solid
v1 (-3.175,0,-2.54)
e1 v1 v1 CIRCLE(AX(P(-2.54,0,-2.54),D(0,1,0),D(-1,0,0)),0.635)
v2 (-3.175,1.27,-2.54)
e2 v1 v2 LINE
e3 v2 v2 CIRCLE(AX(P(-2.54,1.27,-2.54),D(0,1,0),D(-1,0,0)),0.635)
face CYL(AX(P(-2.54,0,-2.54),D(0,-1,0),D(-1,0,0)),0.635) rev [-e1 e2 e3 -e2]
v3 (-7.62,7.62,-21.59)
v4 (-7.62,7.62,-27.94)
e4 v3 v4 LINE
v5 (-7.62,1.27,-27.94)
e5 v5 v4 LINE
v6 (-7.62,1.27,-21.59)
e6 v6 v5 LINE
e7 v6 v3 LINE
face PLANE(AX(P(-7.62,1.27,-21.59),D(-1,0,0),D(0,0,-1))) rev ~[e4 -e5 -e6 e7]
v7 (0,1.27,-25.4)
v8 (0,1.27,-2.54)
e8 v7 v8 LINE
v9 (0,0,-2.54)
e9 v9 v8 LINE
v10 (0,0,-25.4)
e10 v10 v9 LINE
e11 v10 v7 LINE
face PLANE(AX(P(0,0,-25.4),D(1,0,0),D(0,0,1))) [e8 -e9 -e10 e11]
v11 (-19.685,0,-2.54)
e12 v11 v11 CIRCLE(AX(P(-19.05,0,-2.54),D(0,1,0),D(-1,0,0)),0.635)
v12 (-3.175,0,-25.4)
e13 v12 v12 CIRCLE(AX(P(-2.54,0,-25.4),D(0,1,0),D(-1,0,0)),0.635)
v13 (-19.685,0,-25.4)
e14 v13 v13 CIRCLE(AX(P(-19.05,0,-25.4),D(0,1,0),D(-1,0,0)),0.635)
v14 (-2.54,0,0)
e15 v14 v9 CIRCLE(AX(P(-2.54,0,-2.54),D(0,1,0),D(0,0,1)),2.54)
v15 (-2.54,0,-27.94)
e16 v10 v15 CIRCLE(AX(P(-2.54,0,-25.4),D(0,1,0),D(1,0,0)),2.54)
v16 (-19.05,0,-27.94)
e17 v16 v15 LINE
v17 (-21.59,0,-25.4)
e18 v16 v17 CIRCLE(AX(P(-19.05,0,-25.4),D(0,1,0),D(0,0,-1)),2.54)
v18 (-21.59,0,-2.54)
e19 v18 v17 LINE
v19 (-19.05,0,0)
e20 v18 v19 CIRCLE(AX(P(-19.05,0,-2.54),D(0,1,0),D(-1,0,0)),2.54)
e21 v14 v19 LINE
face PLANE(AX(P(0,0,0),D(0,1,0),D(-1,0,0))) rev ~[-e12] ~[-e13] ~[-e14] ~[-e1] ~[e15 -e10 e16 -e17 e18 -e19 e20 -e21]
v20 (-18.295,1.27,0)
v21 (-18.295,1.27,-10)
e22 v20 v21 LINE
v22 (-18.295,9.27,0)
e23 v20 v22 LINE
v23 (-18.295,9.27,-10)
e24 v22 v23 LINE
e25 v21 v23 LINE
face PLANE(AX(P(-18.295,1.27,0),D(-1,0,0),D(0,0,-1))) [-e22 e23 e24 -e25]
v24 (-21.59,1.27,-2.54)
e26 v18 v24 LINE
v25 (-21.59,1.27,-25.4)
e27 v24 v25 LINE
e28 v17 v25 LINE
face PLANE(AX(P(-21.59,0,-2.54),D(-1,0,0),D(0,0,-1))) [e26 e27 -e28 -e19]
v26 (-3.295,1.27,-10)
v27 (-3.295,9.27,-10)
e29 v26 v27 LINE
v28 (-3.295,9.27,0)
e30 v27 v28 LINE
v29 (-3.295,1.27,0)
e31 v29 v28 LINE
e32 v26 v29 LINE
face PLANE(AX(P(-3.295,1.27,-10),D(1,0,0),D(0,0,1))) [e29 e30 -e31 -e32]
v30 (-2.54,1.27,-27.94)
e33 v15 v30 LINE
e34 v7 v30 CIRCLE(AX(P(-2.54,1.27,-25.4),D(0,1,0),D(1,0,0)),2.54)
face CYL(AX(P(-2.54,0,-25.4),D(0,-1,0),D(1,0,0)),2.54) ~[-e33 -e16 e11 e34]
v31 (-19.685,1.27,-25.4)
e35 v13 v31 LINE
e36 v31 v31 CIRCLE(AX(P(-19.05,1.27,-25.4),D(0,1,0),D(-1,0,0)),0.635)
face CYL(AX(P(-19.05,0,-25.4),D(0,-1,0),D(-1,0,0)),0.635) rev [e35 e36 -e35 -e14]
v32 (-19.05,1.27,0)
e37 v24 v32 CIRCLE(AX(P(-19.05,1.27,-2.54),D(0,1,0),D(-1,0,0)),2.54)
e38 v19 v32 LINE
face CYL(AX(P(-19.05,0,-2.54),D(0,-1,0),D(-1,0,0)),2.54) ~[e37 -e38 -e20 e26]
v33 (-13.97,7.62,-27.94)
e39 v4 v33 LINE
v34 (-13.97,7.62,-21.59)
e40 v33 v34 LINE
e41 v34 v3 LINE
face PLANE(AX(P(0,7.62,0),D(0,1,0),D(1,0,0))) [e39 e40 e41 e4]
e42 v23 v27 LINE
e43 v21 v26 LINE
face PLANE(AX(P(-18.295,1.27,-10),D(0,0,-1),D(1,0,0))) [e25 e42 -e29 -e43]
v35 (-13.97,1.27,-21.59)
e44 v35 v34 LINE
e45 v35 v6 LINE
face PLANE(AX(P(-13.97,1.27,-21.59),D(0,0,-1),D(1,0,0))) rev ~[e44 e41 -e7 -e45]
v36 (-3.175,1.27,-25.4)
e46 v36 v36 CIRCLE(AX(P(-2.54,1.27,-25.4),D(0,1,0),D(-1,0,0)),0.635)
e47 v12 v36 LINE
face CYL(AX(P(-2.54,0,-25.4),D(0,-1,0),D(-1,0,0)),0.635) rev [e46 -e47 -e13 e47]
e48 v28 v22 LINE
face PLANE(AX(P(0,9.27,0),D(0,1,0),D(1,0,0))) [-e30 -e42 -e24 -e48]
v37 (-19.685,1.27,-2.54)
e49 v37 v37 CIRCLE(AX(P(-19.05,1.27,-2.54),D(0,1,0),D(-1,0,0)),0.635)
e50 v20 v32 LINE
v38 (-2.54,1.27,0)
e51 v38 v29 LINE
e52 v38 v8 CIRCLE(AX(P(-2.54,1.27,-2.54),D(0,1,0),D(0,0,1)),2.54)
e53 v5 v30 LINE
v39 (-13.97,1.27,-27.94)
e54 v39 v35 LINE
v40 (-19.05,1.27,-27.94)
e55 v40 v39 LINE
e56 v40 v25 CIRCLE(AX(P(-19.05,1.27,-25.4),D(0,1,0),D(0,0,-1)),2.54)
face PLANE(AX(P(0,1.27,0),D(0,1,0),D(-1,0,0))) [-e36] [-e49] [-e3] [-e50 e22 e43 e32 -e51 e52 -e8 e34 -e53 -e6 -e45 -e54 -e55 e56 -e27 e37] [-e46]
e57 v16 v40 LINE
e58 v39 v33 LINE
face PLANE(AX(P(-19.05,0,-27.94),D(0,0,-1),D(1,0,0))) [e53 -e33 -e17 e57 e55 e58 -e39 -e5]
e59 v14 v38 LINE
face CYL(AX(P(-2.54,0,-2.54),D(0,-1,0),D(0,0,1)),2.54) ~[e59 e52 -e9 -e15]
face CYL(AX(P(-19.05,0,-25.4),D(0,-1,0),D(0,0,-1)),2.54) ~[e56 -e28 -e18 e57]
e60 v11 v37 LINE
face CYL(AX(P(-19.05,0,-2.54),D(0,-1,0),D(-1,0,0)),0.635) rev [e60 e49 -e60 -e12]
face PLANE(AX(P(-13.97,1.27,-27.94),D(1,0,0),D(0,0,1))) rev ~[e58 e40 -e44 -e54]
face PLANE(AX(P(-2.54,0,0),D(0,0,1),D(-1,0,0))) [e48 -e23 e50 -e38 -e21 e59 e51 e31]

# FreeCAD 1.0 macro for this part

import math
import FreeCAD as App
import Part
import Sketcher
Q = App.Units.Quantity

doc = App.newDocument("Part")
body = doc.addObject("PartDesign::Body", "Body")

sketch1 = doc.addObject("Sketcher::SketchObject", "Sketch")
body.addObject(sketch1)
sketch1.AttachmentSupport = (doc.XZ_Plane, [""])
sketch1.MapMode = "FlatFace"
sketch1.addGeometry([
    Part.LineSegment(App.Vector(-19.1, 0, 0), App.Vector(-2.5, 0, 0)),
    Part.ArcOfCircle(Part.Circle(App.Vector(-2.5, -2.5, 0), App.Vector(0, 0, 1), 2.5), math.radians(0), math.radians(90)),
    Part.LineSegment(App.Vector(0, -2.5, 0), App.Vector(0, -25.4, 0)),
    Part.ArcOfCircle(Part.Circle(App.Vector(-2.5, -25.4, 0), App.Vector(0, 0, 1), 2.5), math.radians(-90), math.radians(0)),
    Part.LineSegment(App.Vector(-2.5, -27.9, 0), App.Vector(-19.1, -27.9, 0)),
    Part.ArcOfCircle(Part.Circle(App.Vector(-19.1, -25.4, 0), App.Vector(0, 0, 1), 2.5), math.radians(180), math.radians(270)),
    Part.LineSegment(App.Vector(-21.6, -25.4, 0), App.Vector(-21.6, -2.5, 0)),
    Part.ArcOfCircle(Part.Circle(App.Vector(-19.1, -2.5, 0), App.Vector(0, 0, 1), 2.5), math.radians(90), math.radians(180)),
    Part.Circle(App.Vector(-2.5, -25.4, 0), App.Vector(0, 0, 1), 0.6),
    Part.Circle(App.Vector(-19.1, -25.4, 0), App.Vector(0, 0, 1), 0.6),
    Part.Circle(App.Vector(-2.5, -2.5, 0), App.Vector(0, 0, 1), 0.6),
    Part.Circle(App.Vector(-19.1, -2.5, 0), App.Vector(0, 0, 1), 0.6),
], False)
sketch1.addConstraint([
    Sketcher.Constraint("Tangent", 0, 2, 1, 2),
    Sketcher.Constraint("Tangent", 1, 1, 2, 1),
    Sketcher.Constraint("Tangent", 2, 2, 3, 2),
    Sketcher.Constraint("Tangent", 3, 1, 4, 1),
    Sketcher.Constraint("Tangent", 4, 2, 5, 2),
    Sketcher.Constraint("Tangent", 5, 1, 6, 1),
    Sketcher.Constraint("Tangent", 6, 2, 7, 2),
    Sketcher.Constraint("Tangent", 7, 1, 0, 1),
    Sketcher.Constraint("Horizontal", 0),
    Sketcher.Constraint("Vertical", 2),
    Sketcher.Constraint("Horizontal", 4),
    Sketcher.Constraint("Vertical", 6),
    Sketcher.Constraint("Coincident", 8, 3, 3, 3),
    Sketcher.Constraint("Coincident", 9, 3, 5, 3),
    Sketcher.Constraint("Coincident", 10, 3, 1, 3),
    Sketcher.Constraint("Coincident", 11, 3, 7, 3),
    Sketcher.Constraint("Equal", 1, 3),
    Sketcher.Constraint("Equal", 3, 5),
    Sketcher.Constraint("Equal", 5, 7),
    Sketcher.Constraint("Equal", 8, 9),
    Sketcher.Constraint("Equal", 9, 10),
    Sketcher.Constraint("Equal", 10, 11),
    Sketcher.Constraint("PointOnObject", 0, 2, -1),
    Sketcher.Constraint("PointOnObject", 1, 1, -2),
    Sketcher.Constraint("Radius", 1, Q("0.1 in")),
    Sketcher.Constraint("Diameter", 8, Q("0.05 in")),
    Sketcher.Constraint("DistanceY", 3, 1, -1, 1, Q("1.1 in")),
    Sketcher.Constraint("DistanceX", 5, 1, -1, 1, Q("0.85 in")),
])
pad1 = doc.addObject("PartDesign::Pad", "Pad")
body.addObject(pad1)
pad1.Profile = sketch1
pad1.Length = Q("0.05 in")
pad1.Reversed = True

sketch2 = doc.addObject("Sketcher::SketchObject", "Sketch001")
body.addObject(sketch2)
sketch2.AttachmentSupport = (doc.XZ_Plane, [""])
sketch2.MapMode = "FlatFace"
sketch2.AttachmentOffset = App.Placement(App.Vector(0, 0, -0.05 * 25.4), App.Rotation())
sketch2.addGeometry([
    Part.LineSegment(App.Vector(-14, -28, 0), App.Vector(-14, -22, 0)),
    Part.LineSegment(App.Vector(-14, -22, 0), App.Vector(-8, -22, 0)),
    Part.LineSegment(App.Vector(-8, -22, 0), App.Vector(-8, -28, 0)),
    Part.LineSegment(App.Vector(-8, -28, 0), App.Vector(-14, -28, 0)),
], False)
sketch2.addConstraint([
    Sketcher.Constraint("Coincident", 0, 2, 1, 1),
    Sketcher.Constraint("Coincident", 1, 2, 2, 1),
    Sketcher.Constraint("Coincident", 2, 2, 3, 1),
    Sketcher.Constraint("Coincident", 3, 2, 0, 1),
    Sketcher.Constraint("Vertical", 0),
    Sketcher.Constraint("Horizontal", 1),
    Sketcher.Constraint("Vertical", 2),
    Sketcher.Constraint("Horizontal", 3),
    Sketcher.Constraint("Equal", 3, 0),
    Sketcher.Constraint("DistanceX", 1, 1, 1, 2, Q("0.25 in")),
    Sketcher.Constraint("DistanceX", 1, 2, -1, 1, Q("0.3 in")),
    Sketcher.Constraint("DistanceY", 2, 2, -1, 1, Q("1.1 in")),
])
pad2 = doc.addObject("PartDesign::Pad", "Pad001")
body.addObject(pad2)
pad2.Profile = sketch2
pad2.Length = Q("0.25 in")
pad2.Reversed = True

sketch3 = doc.addObject("Sketcher::SketchObject", "Sketch002")
body.addObject(sketch3)
sketch3.AttachmentSupport = (doc.XZ_Plane, [""])
sketch3.MapMode = "FlatFace"
sketch3.AttachmentOffset = App.Placement(App.Vector(0, 0, -0.05 * 25.4), App.Rotation())
sketch3.addGeometry([
    Part.LineSegment(App.Vector(-3, -10, 0), App.Vector(-18, -10, 0)),
    Part.LineSegment(App.Vector(-18, -10, 0), App.Vector(-18, 0, 0)),
    Part.LineSegment(App.Vector(-18, 0, 0), App.Vector(-3, 0, 0)),
    Part.LineSegment(App.Vector(-3, 0, 0), App.Vector(-3, -10, 0)),
], False)
sketch3.addConstraint([
    Sketcher.Constraint("Coincident", 0, 2, 1, 1),
    Sketcher.Constraint("Coincident", 1, 2, 2, 1),
    Sketcher.Constraint("Coincident", 2, 2, 3, 1),
    Sketcher.Constraint("Coincident", 3, 2, 0, 1),
    Sketcher.Constraint("Horizontal", 0),
    Sketcher.Constraint("Vertical", 1),
    Sketcher.Constraint("Horizontal", 2),
    Sketcher.Constraint("Vertical", 3),
    Sketcher.Constraint("PointOnObject", 1, 2, -1),
    Sketcher.Constraint("DistanceY", 1, 1, 1, 2, Q("0.3937 in")),
    Sketcher.Constraint("DistanceX", 0, 2, 0, 1, Q("15 mm")),
    Sketcher.Constraint("DistanceX", 0, 2, -1, 1, Q("18.295 mm")),
])
pad3 = doc.addObject("PartDesign::Pad", "Pad002")
body.addObject(pad3)
pad3.Profile = sketch3
pad3.Length = 8
pad3.Reversed = True

doc.recompute()
